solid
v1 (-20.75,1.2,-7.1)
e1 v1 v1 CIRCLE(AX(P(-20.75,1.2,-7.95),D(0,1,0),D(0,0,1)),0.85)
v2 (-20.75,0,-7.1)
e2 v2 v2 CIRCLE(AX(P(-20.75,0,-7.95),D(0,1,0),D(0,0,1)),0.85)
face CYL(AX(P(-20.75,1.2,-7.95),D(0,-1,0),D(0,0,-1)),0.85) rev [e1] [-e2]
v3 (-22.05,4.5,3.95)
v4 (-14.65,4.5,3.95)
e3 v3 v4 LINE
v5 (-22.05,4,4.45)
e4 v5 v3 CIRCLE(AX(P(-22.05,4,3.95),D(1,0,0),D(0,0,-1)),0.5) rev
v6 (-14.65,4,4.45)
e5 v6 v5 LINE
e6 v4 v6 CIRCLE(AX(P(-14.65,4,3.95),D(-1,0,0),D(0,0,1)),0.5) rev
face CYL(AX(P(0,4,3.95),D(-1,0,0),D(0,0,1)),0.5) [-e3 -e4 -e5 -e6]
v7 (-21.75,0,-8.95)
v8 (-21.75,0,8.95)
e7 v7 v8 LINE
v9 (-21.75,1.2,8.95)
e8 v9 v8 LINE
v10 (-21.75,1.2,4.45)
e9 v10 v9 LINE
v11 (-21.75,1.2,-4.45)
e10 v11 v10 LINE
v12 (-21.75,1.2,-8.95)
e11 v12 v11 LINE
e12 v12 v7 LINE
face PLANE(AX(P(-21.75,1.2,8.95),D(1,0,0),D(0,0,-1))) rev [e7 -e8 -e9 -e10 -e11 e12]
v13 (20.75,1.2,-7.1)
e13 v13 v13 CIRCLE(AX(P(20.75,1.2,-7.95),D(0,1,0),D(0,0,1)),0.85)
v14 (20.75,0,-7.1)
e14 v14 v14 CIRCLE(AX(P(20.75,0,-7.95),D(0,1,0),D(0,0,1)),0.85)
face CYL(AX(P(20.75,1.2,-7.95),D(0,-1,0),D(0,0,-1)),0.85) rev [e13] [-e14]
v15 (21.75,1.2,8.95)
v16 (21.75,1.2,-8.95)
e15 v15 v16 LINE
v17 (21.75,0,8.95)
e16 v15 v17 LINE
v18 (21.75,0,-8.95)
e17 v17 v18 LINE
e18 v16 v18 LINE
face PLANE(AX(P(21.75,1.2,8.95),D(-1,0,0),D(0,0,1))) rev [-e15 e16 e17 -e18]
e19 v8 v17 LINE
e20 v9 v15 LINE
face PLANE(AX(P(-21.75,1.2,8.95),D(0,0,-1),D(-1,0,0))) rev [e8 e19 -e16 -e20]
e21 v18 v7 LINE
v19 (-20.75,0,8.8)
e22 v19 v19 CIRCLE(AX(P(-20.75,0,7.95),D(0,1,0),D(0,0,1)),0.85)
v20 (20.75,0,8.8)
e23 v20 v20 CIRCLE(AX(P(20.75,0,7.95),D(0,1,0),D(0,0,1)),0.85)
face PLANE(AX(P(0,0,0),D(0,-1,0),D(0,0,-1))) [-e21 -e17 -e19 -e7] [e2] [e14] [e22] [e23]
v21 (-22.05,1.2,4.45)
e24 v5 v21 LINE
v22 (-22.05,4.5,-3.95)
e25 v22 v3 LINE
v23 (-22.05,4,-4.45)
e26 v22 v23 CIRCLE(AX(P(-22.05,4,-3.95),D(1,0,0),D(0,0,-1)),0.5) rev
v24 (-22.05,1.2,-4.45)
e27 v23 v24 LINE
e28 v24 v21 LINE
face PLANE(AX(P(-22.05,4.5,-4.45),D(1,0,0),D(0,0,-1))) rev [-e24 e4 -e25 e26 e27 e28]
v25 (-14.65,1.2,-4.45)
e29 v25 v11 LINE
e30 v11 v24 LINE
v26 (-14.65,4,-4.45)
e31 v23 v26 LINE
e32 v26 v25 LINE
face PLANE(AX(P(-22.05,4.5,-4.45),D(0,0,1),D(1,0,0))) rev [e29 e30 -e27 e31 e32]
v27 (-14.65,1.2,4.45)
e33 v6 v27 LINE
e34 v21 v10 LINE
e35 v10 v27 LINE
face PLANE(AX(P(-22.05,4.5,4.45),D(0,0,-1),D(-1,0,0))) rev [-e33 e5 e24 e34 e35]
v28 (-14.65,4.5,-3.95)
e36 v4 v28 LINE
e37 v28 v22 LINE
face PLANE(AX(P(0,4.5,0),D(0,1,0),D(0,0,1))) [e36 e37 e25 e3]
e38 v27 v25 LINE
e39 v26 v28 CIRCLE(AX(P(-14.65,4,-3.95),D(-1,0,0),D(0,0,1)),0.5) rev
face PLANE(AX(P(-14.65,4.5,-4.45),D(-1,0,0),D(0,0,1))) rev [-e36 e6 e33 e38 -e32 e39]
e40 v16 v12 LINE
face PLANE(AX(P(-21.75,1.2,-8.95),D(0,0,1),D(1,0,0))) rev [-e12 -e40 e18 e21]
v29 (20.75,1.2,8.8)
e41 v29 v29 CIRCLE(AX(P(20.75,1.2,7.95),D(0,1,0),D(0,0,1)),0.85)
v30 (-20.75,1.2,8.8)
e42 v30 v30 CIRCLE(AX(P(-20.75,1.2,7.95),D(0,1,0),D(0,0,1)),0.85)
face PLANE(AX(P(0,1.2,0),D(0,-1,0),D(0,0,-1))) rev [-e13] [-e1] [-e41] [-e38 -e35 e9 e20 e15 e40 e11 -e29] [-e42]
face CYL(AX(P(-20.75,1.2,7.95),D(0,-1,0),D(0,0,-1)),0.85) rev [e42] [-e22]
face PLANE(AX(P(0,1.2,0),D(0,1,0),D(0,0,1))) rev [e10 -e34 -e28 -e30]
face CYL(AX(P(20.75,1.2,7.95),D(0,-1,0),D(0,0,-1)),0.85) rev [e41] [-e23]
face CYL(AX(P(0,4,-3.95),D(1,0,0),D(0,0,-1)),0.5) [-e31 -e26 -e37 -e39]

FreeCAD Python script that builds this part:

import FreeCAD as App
import Part
import Sketcher

V = App.Vector


def edges_at(feature, points):
    """Names of the edges that pass closest to the given points."""
    edges = feature.Shape.Edges
    near = lambda p: min(range(len(edges)), key=lambda i: edges[i].distToShape(Part.Vertex(*p))[0])
    return sorted({f"Edge{near(p) + 1}" for p in points})


def add_polygon(sketch, points):
    """Adds a closed chain of lines whose ends are joined by coincident constraints."""
    first, n = sketch.GeometryCount, len(points)
    for a, b in zip(points, points[1:] + points[:1]):
        sketch.addGeometry(Part.LineSegment(App.Vector(*a, 0), App.Vector(*b, 0)), False)
    for i in range(n):
        sketch.addConstraint(Sketcher.Constraint("Coincident", first + i, 2, first + (i + 1) % n, 1))

doc = App.newDocument("Part")
body = doc.addObject("PartDesign::Body", "Body")

# Sketch on XZ plane
sketch1 = body.newObject("Sketcher::SketchObject", "Sketch")
sketch1.AttachmentSupport = (doc.getObject("XZ_Plane"), [""])
sketch1.MapMode = "FlatFace"
add_polygon(sketch1, [(-21.8, -8.9), (-21.8, 8.9), (21.8, 8.9), (21.8, -8.9)])  # lines 0-3
sketch1.addGeometry(Part.Circle(V(-20.8, 8, 0), V(0, 0, 1), 0.8), False)  # 4
sketch1.addGeometry(Part.Circle(V(20.8, 8, 0), V(0, 0, 1), 0.8), False)  # 5
sketch1.addGeometry(Part.Circle(V(-20.8, -8, 0), V(0, 0, 1), 0.8), False)  # 6
sketch1.addGeometry(Part.Circle(V(20.8, -8, 0), V(0, 0, 1), 0.8), False)  # 7
sketch1.addConstraint([
    Sketcher.Constraint("Vertical", 0),
    Sketcher.Constraint("Horizontal", 1),
    Sketcher.Constraint("Vertical", 2),
    Sketcher.Constraint("Horizontal", 3),
    Sketcher.Constraint("Equal", 4, 5),
    Sketcher.Constraint("Equal", 5, 6),
    Sketcher.Constraint("Equal", 6, 7),
    Sketcher.Constraint("Symmetric", 5, 3, 6, 3, -1, 1),
    Sketcher.Constraint("Symmetric", 4, 3, 7, 3, -1, 1),
    Sketcher.Constraint("Symmetric", 0, 2, 2, 2, -1, 1),
    Sketcher.Constraint("Symmetric", 4, 3, 5, 3, -2),
    Sketcher.Constraint("Diameter", 4, 1.7),
    Sketcher.Constraint("DistanceX", 1, 1, 1, 2, 43.5),
    Sketcher.Constraint("DistanceY", 0, 1, 0, 2, 17.9),
    Sketcher.Constraint("DistanceX", 0, 2, 4, 3, 1.0),
    Sketcher.Constraint("DistanceY", 4, 3, 0, 2, 1.0),
])
pad1 = body.newObject("PartDesign::Pad", "Pad")
pad1.Profile = sketch1
pad1.Length = 1.2
pad1.Reversed = True

# Sketch on XZ plane
sketch2 = body.newObject("Sketcher::SketchObject", "Sketch001")
sketch2.AttachmentSupport = (doc.getObject("XZ_Plane"), [""])
sketch2.MapMode = "FlatFace"
sketch2.AttachmentOffset = App.Placement(V(0, 0, -1.2), App.Rotation())
add_polygon(sketch2, [(-22, -4), (-22, 4), (-15, 4), (-15, -4)])  # lines 0-3
sketch2.addConstraint([
    Sketcher.Constraint("Vertical", 0),
    Sketcher.Constraint("Horizontal", 1),
    Sketcher.Constraint("Vertical", 2),
    Sketcher.Constraint("Horizontal", 3),
    Sketcher.Constraint("DistanceX", 1, 1, 1, 2, 7.4),
    Sketcher.Constraint("DistanceY", 0, 1, 0, 2, 8.9),
    Sketcher.Constraint("DistanceX", 0, 2, -1, 1, 22.05),
    Sketcher.Constraint("DistanceY", -1, 1, 0, 2, 4.45),
])
pad2 = body.newObject("PartDesign::Pad", "Pad001")
pad2.Profile = sketch2
pad2.Length = 3.3
pad2.Reversed = True
doc.recompute()

fillet = body.newObject("PartDesign::Fillet", "Fillet")
fillet.Base = (pad2, edges_at(pad2, [(-18.35, 4.5, 4.45), (-18.35, 4.5, -4.45)]))
fillet.Radius = 0.5

doc.recompute()
